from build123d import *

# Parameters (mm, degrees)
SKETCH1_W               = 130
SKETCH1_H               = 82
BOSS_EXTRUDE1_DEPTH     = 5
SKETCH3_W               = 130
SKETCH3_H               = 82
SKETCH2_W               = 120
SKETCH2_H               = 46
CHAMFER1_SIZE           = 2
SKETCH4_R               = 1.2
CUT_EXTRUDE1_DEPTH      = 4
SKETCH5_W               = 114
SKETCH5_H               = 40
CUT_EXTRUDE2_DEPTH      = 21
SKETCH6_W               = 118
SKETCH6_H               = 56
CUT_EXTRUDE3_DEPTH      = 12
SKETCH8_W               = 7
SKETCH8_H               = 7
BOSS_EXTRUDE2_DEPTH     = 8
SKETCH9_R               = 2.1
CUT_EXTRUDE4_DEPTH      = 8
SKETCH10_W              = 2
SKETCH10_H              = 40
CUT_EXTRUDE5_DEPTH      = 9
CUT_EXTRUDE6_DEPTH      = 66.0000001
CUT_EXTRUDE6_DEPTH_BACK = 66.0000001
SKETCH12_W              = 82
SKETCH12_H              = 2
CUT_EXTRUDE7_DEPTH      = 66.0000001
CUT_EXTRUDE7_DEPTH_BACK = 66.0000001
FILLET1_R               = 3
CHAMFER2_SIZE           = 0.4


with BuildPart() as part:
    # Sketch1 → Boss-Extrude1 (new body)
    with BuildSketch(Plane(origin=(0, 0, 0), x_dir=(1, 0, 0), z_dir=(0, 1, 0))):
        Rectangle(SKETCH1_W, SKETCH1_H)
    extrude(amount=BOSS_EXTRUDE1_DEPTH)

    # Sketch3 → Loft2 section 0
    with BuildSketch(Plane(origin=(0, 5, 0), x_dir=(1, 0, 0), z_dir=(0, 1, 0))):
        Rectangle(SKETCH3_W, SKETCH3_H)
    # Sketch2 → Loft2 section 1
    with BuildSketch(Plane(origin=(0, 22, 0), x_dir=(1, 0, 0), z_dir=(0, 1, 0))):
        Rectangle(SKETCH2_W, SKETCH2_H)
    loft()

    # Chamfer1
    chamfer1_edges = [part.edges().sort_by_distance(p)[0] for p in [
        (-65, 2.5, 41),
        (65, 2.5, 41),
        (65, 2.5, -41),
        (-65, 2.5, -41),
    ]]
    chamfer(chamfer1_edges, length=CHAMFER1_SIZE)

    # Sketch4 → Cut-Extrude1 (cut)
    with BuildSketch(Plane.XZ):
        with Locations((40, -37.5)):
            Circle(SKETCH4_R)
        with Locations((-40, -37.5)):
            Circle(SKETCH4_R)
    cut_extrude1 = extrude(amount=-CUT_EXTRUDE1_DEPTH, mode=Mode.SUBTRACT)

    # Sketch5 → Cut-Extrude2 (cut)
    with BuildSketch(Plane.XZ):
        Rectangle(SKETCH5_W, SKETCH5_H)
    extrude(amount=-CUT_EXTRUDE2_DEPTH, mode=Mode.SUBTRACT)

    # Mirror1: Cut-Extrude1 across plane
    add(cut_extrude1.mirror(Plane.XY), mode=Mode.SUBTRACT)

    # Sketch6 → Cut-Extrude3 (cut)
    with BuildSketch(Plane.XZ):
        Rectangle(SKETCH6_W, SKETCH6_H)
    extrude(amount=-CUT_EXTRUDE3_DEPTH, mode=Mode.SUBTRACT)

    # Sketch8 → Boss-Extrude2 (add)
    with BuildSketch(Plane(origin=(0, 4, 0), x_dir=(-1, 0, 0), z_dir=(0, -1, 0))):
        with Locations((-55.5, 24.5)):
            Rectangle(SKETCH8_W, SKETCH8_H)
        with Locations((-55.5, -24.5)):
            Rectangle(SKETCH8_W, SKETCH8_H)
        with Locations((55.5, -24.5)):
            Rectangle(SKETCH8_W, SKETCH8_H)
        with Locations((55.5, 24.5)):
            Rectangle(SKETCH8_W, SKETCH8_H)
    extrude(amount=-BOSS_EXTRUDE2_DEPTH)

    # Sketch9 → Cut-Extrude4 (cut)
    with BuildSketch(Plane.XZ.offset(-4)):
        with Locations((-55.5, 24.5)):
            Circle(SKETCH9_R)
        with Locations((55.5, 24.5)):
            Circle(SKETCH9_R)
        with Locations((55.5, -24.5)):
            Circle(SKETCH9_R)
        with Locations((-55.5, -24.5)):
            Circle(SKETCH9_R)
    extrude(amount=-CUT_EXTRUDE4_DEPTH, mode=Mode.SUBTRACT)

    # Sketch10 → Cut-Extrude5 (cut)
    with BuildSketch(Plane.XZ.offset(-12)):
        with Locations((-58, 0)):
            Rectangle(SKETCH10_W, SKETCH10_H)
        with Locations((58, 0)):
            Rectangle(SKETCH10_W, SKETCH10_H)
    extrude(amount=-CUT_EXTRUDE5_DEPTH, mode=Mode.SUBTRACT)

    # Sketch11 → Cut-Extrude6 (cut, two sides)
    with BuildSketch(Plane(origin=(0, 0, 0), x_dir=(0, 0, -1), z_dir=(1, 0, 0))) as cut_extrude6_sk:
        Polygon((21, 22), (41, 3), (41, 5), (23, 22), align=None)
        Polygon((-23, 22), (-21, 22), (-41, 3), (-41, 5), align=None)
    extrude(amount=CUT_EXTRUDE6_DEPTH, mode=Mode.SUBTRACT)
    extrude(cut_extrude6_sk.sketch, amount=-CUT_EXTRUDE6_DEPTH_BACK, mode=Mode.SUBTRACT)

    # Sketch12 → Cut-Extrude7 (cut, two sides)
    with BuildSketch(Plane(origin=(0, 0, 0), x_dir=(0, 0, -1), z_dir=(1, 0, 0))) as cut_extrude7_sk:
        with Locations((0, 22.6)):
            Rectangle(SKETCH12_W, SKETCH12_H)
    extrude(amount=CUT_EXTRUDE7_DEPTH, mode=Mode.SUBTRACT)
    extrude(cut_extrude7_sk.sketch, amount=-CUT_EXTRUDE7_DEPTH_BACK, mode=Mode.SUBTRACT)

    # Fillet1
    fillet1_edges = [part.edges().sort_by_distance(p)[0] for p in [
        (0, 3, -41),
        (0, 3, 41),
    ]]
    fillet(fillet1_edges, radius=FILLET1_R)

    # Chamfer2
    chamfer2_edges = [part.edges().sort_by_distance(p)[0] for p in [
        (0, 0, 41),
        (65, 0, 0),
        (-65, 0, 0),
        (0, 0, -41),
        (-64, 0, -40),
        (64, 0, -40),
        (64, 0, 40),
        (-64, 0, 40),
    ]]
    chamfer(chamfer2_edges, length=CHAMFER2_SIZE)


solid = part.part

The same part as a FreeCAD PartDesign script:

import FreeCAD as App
import Part
import Sketcher

V = App.Vector


def edges_at(feature, points):
    """Names of the edges that pass closest to the given points."""
    edges = feature.Shape.Edges
    near = lambda p: min(range(len(edges)), key=lambda i: edges[i].distToShape(Part.Vertex(*p))[0])
    return sorted({f"Edge{near(p) + 1}" for p in points})


def add_polygon(sketch, points):
    """Adds a closed chain of lines whose ends are joined by coincident constraints."""
    first, n = sketch.GeometryCount, len(points)
    for a, b in zip(points, points[1:] + points[:1]):
        sketch.addGeometry(Part.LineSegment(App.Vector(*a, 0), App.Vector(*b, 0)), False)
    for i in range(n):
        sketch.addConstraint(Sketcher.Constraint("Coincident", first + i, 2, first + (i + 1) % n, 1))

doc = App.newDocument("Part")
body = doc.addObject("PartDesign::Body", "Body")

sketch1 = body.newObject("Sketcher::SketchObject", "Sketch")
sketch1.AttachmentSupport = (doc.getObject("XZ_Plane"), [""])
sketch1.MapMode = "FlatFace"
add_polygon(sketch1, [(-65, -41), (-65, 41), (65, 41), (65, -41)])
sketch1.addConstraint([
    Sketcher.Constraint("Vertical", 0),
    Sketcher.Constraint("Horizontal", 1),
    Sketcher.Constraint("Vertical", 2),
    Sketcher.Constraint("Horizontal", 3),
    Sketcher.Constraint("Symmetric", 0, 2, 2, 2, -1, 1),
    Sketcher.Constraint("DistanceX", 1, 1, 1, 2, 130.0),
    Sketcher.Constraint("DistanceY", 0, 1, 0, 2, 82.0),
])
pad1 = body.newObject("PartDesign::Pad", "Pad")
pad1.Profile = sketch1
pad1.Length = 5
pad1.Reversed = True

sketch2 = body.newObject("Sketcher::SketchObject", "Sketch001")
sketch2.AttachmentSupport = (doc.getObject("XZ_Plane"), [""])
sketch2.MapMode = "FlatFace"
sketch2.AttachmentOffset = App.Placement(V(0, 0, -5), App.Rotation())
add_polygon(sketch2, [(-65, -41), (-65, 41), (65, 41), (65, -41)])
sketch2.addConstraint([
    Sketcher.Constraint("Vertical", 0),
    Sketcher.Constraint("Horizontal", 1),
    Sketcher.Constraint("Vertical", 2),
    Sketcher.Constraint("Horizontal", 3),
    Sketcher.Constraint("Symmetric", 0, 2, 2, 2, -1, 1),
    Sketcher.Constraint("DistanceX", 1, 1, 1, 2, 130.0),
    Sketcher.Constraint("DistanceY", 0, 1, 0, 2, 82.0),
])

sketch3 = body.newObject("Sketcher::SketchObject", "Sketch002")
sketch3.AttachmentSupport = (doc.getObject("XZ_Plane"), [""])
sketch3.MapMode = "FlatFace"
sketch3.AttachmentOffset = App.Placement(V(0, 0, -22), App.Rotation())
add_polygon(sketch3, [(-60, -23), (-60, 23), (60, 23), (60, -23)])
sketch3.addConstraint([
    Sketcher.Constraint("Vertical", 0),
    Sketcher.Constraint("Horizontal", 1),
    Sketcher.Constraint("Vertical", 2),
    Sketcher.Constraint("Horizontal", 3),
    Sketcher.Constraint("Symmetric", 0, 2, 2, 2, -1, 1),
    Sketcher.Constraint("DistanceX", 1, 1, 1, 2, 120.0),
    Sketcher.Constraint("DistanceY", 0, 1, 0, 2, 46.0),
])

additiveloft = body.newObject("PartDesign::AdditiveLoft", "AdditiveLoft")
additiveloft.Profile = sketch2
additiveloft.Sections = [sketch3]
doc.recompute()

chamfer = body.newObject("PartDesign::Chamfer", "Chamfer")
chamfer.Base = (additiveloft, edges_at(additiveloft, [
    (-65, 2.5, 41),
    (65, 2.5, 41),
    (65, 2.5, -41),
    (-65, 2.5, -41),
]))
chamfer.Size = 2

sketch4 = body.newObject("Sketcher::SketchObject", "Sketch003")
sketch4.AttachmentSupport = (doc.getObject("XZ_Plane"), [""])
sketch4.MapMode = "FlatFace"
sketch4.addGeometry([
    Part.Circle(V(40, -37.5, 0), V(0, 0, 1), 1.2),
    Part.Circle(V(-40, -37.5, 0), V(0, 0, 1), 1.2),
], False)
sketch4.addConstraint([
    Sketcher.Constraint("Equal", 0, 1),
    Sketcher.Constraint("Symmetric", 0, 3, 1, 3, -2),
    Sketcher.Constraint("Diameter", 0, 2.4),
    Sketcher.Constraint("DistanceX", -1, 1, 0, 3, 40.0),
    Sketcher.Constraint("DistanceY", 0, 3, -1, 1, 37.5),
])
pocket1 = body.newObject("PartDesign::Pocket", "Pocket")
pocket1.Profile = sketch4
pocket1.Length = 4

sketch5 = body.newObject("Sketcher::SketchObject", "Sketch004")
sketch5.AttachmentSupport = (doc.getObject("XZ_Plane"), [""])
sketch5.MapMode = "FlatFace"
add_polygon(sketch5, [(-57, 20), (-57, -20), (57, -20), (57, 20)])
sketch5.addConstraint([
    Sketcher.Constraint("Vertical", 0),
    Sketcher.Constraint("Horizontal", 1),
    Sketcher.Constraint("Vertical", 2),
    Sketcher.Constraint("Horizontal", 3),
    Sketcher.Constraint("Symmetric", 0, 2, 2, 2, -1, 1),
    Sketcher.Constraint("DistanceX", 1, 1, 1, 2, 114.0),
    Sketcher.Constraint("DistanceY", 0, 2, 0, 1, 40.0),
])
pocket2 = body.newObject("PartDesign::Pocket", "Pocket001")
pocket2.Profile = sketch5
pocket2.Length = 21
doc.recompute()

mirrored = body.newObject("PartDesign::Mirrored", "Mirrored")
mirrored.Originals = [pocket1]
mirrored.MirrorPlane = (doc.getObject("XY_Plane"), [""])
body.Tip = mirrored

sketch6 = body.newObject("Sketcher::SketchObject", "Sketch005")
sketch6.AttachmentSupport = (doc.getObject("XZ_Plane"), [""])
sketch6.MapMode = "FlatFace"
add_polygon(sketch6, [(-59, 28), (-59, -28), (59, -28), (59, 28)])
sketch6.addConstraint([
    Sketcher.Constraint("Vertical", 0),
    Sketcher.Constraint("Horizontal", 1),
    Sketcher.Constraint("Vertical", 2),
    Sketcher.Constraint("Horizontal", 3),
    Sketcher.Constraint("Symmetric", 0, 2, 2, 2, -1, 1),
    Sketcher.Constraint("DistanceX", 1, 1, 1, 2, 118.0),
    Sketcher.Constraint("DistanceY", 0, 2, 0, 1, 56.0),
])
pocket3 = body.newObject("PartDesign::Pocket", "Pocket002")
pocket3.Profile = sketch6
pocket3.Length = 12

sketch7 = body.newObject("Sketcher::SketchObject", "Sketch006")
sketch7.AttachmentSupport = (doc.getObject("XZ_Plane"), [""])
sketch7.MapMode = "FlatFace"
sketch7.AttachmentOffset = App.Placement(V(0, 0, -4), App.Rotation())
add_polygon(sketch7, [(59, -28), (59, -21), (52, -21), (52, -28)])
add_polygon(sketch7, [(59, 21), (59, 28), (52, 28), (52, 21)])
add_polygon(sketch7, [(-52, 21), (-52, 28), (-59, 28), (-59, 21)])
add_polygon(sketch7, [(-52, -28), (-52, -21), (-59, -21), (-59, -28)])
sketch7.addConstraint([
    Sketcher.Constraint("Vertical", 0),
    Sketcher.Constraint("Horizontal", 1),
    Sketcher.Constraint("Vertical", 2),
    Sketcher.Constraint("Horizontal", 3),
    Sketcher.Constraint("Vertical", 4),
    Sketcher.Constraint("Horizontal", 5),
    Sketcher.Constraint("Vertical", 6),
    Sketcher.Constraint("Horizontal", 7),
    Sketcher.Constraint("Vertical", 8),
    Sketcher.Constraint("Horizontal", 9),
    Sketcher.Constraint("Vertical", 10),
    Sketcher.Constraint("Horizontal", 11),
    Sketcher.Constraint("Vertical", 12),
    Sketcher.Constraint("Horizontal", 13),
    Sketcher.Constraint("Vertical", 14),
    Sketcher.Constraint("Horizontal", 15),
    Sketcher.Constraint("Symmetric", 2, 2, 8, 2, -1, 1),
    Sketcher.Constraint("Symmetric", 0, 2, 10, 2, -1, 1),
    Sketcher.Constraint("Symmetric", 6, 2, 12, 2, -1, 1),
    Sketcher.Constraint("Symmetric", 4, 2, 14, 2, -1, 1),
    Sketcher.Constraint("Symmetric", 5, 2, 8, 2, -2),
    Sketcher.Constraint("Symmetric", 7, 2, 10, 2, -2),
    Sketcher.Constraint("Equal", 15, 0),
    Sketcher.Constraint("DistanceX", 1, 2, 1, 1, 7.0),
    Sketcher.Constraint("DistanceX", -1, 1, 0, 2, 59.0),
    Sketcher.Constraint("DistanceY", 0, 2, -1, 1, 21.0),
])
pad2 = body.newObject("PartDesign::Pad", "Pad001")
pad2.Profile = sketch7
pad2.Length = 8
pad2.Reversed = True

sketch8 = body.newObject("Sketcher::SketchObject", "Sketch007")
sketch8.AttachmentSupport = (doc.getObject("XZ_Plane"), [""])
sketch8.MapMode = "FlatFace"
sketch8.AttachmentOffset = App.Placement(V(0, 0, -4), App.Rotation())
sketch8.addGeometry([
    Part.Circle(V(-55.5, 24.5, 0), V(0, 0, 1), 2.1),
    Part.Circle(V(55.5, 24.5, 0), V(0, 0, 1), 2.1),
    Part.Circle(V(55.5, -24.5, 0), V(0, 0, 1), 2.1),
    Part.Circle(V(-55.5, -24.5, 0), V(0, 0, 1), 2.1),
], False)
sketch8.addConstraint([
    Sketcher.Constraint("Equal", 0, 1),
    Sketcher.Constraint("Equal", 1, 2),
    Sketcher.Constraint("Equal", 2, 3),
    Sketcher.Constraint("Symmetric", 0, 3, 2, 3, -1, 1),
    Sketcher.Constraint("Symmetric", 1, 3, 3, 3, -1, 1),
    Sketcher.Constraint("Symmetric", 0, 3, 1, 3, -2),
    Sketcher.Constraint("Diameter", 0, 4.2),
    Sketcher.Constraint("DistanceX", 0, 3, 1, 3, 111.0),
    Sketcher.Constraint("DistanceY", 2, 3, 1, 3, 49.0),
])
pocket4 = body.newObject("PartDesign::Pocket", "Pocket003")
pocket4.Profile = sketch8
pocket4.Length = 8

sketch9 = body.newObject("Sketcher::SketchObject", "Sketch008")
sketch9.AttachmentSupport = (doc.getObject("XZ_Plane"), [""])
sketch9.MapMode = "FlatFace"
sketch9.AttachmentOffset = App.Placement(V(0, 0, -12), App.Rotation())
add_polygon(sketch9, [(-59, 20), (-59, -20), (-57, -20), (-57, 20)])
add_polygon(sketch9, [(57, 20), (57, -20), (59, -20), (59, 20)])
sketch9.addConstraint([
    Sketcher.Constraint("Vertical", 0),
    Sketcher.Constraint("Horizontal", 1),
    Sketcher.Constraint("Vertical", 2),
    Sketcher.Constraint("Horizontal", 3),
    Sketcher.Constraint("Vertical", 4),
    Sketcher.Constraint("Horizontal", 5),
    Sketcher.Constraint("Vertical", 6),
    Sketcher.Constraint("Horizontal", 7),
    Sketcher.Constraint("Symmetric", 2, 2, 4, 2, -1, 1),
    Sketcher.Constraint("Symmetric", 0, 2, 6, 2, -1, 1),
    Sketcher.Constraint("Horizontal", 1, 2, 4, 2),
    Sketcher.Constraint("DistanceX", 1, 1, 1, 2, 2.0),
    Sketcher.Constraint("DistanceY", 0, 2, 0, 1, 40.0),
    Sketcher.Constraint("DistanceX", 0, 2, -1, 1, 59.0),
])
pocket5 = body.newObject("PartDesign::Pocket", "Pocket004")
pocket5.Profile = sketch9
pocket5.Length = 9

sketch10 = body.newObject("Sketcher::SketchObject", "Sketch009")
sketch10.AttachmentSupport = (doc.getObject("YZ_Plane"), [""])
sketch10.MapMode = "FlatFace"
add_polygon(sketch10, [(22, -21), (3, -41), (5, -41), (22, -23)])
add_polygon(sketch10, [(22, 21), (22, 23), (5, 41), (3, 41)])
sketch10.addConstraint([
    Sketcher.Constraint("Horizontal", 1),
    Sketcher.Constraint("Vertical", 3),
    Sketcher.Constraint("Vertical", 4),
    Sketcher.Constraint("Horizontal", 6),
    Sketcher.Constraint("Symmetric", 2, 2, 4, 2, -1),
    Sketcher.Constraint("Symmetric", 1, 2, 5, 2, -1),
    Sketcher.Constraint("Vertical", 0, 2, 6, 2),
    Sketcher.Constraint("Equal", 6, 3),
    Sketcher.Constraint("Equal", 3, 4),
    Sketcher.Constraint("DistanceX", 1, 1, 1, 2, 2.0),
    Sketcher.Constraint("DistanceX", -1, 1, 0, 2, 3.0),
    Sketcher.Constraint("DistanceY", 0, 2, -1, 1, 41.0),
    Sketcher.Constraint("DistanceX", -1, 1, 2, 2, 22.0),
    Sketcher.Constraint("DistanceY", 2, 2, -1, 1, 23.0),
])
pocket6 = body.newObject("PartDesign::Pocket", "Pocket005")
pocket6.Profile = sketch10
pocket6.Type = "ThroughAll"
pocket6.Midplane = True

sketch11 = body.newObject("Sketcher::SketchObject", "Sketch010")
sketch11.AttachmentSupport = (doc.getObject("YZ_Plane"), [""])
sketch11.MapMode = "FlatFace"
add_polygon(sketch11, [(23.6, 41), (21.6, 41), (21.6, -41), (23.6, -41)])
sketch11.addConstraint([
    Sketcher.Constraint("Horizontal", 0),
    Sketcher.Constraint("Vertical", 1),
    Sketcher.Constraint("Horizontal", 2),
    Sketcher.Constraint("Vertical", 3),
    Sketcher.Constraint("DistanceX", 0, 2, 0, 1, 2.0),
    Sketcher.Constraint("DistanceY", 1, 2, 1, 1, 82.0),
    Sketcher.Constraint("DistanceY", -1, 1, 0, 2, 41.0),
    Sketcher.Constraint("DistanceX", -1, 1, 0, 2, 21.6),
])
pocket7 = body.newObject("PartDesign::Pocket", "Pocket006")
pocket7.Profile = sketch11
pocket7.Type = "ThroughAll"
pocket7.Midplane = True
doc.recompute()

fillet = body.newObject("PartDesign::Fillet", "Fillet")
fillet.Base = (pocket7, edges_at(pocket7, [(0, 3, -41), (0, 3, 41)]))
fillet.Radius = 3
doc.recompute()

chamfer2 = body.newObject("PartDesign::Chamfer", "Chamfer001")
chamfer2.Base = (fillet, edges_at(fillet, [
    (0, 0, 41),
    (65, 0, 0),
    (-65, 0, 0),
    (0, 0, -41),
    (-64, 0, -40),
    (64, 0, -40),
    (64, 0, 40),
    (-64, 0, 40),
]))
chamfer2.Size = 0.4

doc.recompute()
